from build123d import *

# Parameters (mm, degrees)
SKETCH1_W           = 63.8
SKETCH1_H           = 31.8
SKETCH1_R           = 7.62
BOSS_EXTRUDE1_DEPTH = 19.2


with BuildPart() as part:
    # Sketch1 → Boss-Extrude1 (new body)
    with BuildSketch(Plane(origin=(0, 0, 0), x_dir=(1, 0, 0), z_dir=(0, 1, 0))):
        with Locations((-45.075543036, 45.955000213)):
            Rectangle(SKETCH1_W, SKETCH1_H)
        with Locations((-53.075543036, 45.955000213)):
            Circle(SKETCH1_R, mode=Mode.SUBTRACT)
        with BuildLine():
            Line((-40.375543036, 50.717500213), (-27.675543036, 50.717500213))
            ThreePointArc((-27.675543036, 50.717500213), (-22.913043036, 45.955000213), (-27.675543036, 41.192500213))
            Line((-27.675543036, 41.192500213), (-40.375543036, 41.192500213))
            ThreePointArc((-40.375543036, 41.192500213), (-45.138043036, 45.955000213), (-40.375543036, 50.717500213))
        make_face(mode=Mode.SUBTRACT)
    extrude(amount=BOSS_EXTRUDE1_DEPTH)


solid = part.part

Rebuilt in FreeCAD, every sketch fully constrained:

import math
import FreeCAD as App
import Part
import Sketcher

V = App.Vector
Q = App.Units.Quantity


def add_polygon(sketch, points):
    """Adds a closed chain of lines whose ends are joined by coincident constraints."""
    first, n = sketch.GeometryCount, len(points)
    for a, b in zip(points, points[1:] + points[:1]):
        sketch.addGeometry(Part.LineSegment(App.Vector(*a, 0), App.Vector(*b, 0)), False)
    for i in range(n):
        sketch.addConstraint(Sketcher.Constraint("Coincident", first + i, 2, first + (i + 1) % n, 1))

doc = App.newDocument("Part")
body = doc.addObject("PartDesign::Body", "Body")

# Sketch on XZ plane
sketch1 = body.newObject("Sketcher::SketchObject", "Sketch")
sketch1.AttachmentSupport = (doc.getObject("XZ_Plane"), [""])
sketch1.MapMode = "FlatFace"
add_polygon(sketch1, [(-77, -61.9), (-77, -30.1), (-13.2, -30.1), (-13.2, -61.9)])  # lines 0-3
sketch1.addGeometry(Part.Circle(V(-53.1, -46, 0), V(0, 0, 1), 7.6), False)  # 4
sketch1.addGeometry(Part.ArcOfCircle(Part.Circle(V(-40.4, -46, 0), V(0, 0, 1), 4.8), math.radians(90), math.radians(270)), False)  # 5
sketch1.addGeometry(Part.LineSegment(V(-40.4, -50.7, 0), V(-27.7, -50.7, 0)), False)  # 6
sketch1.addGeometry(Part.ArcOfCircle(Part.Circle(V(-27.7, -46, 0), V(0, 0, 1), 4.8), math.radians(-90), math.radians(90)), False)  # 7
sketch1.addGeometry(Part.LineSegment(V(-27.7, -41.2, 0), V(-40.4, -41.2, 0)), False)  # 8
sketch1.addConstraint(Sketcher.Constraint("Tangent", 5, 2, 6, 1))
sketch1.addConstraint(Sketcher.Constraint("Tangent", 6, 2, 7, 1))
sketch1.addConstraint(Sketcher.Constraint("Tangent", 7, 2, 8, 1))
sketch1.addConstraint(Sketcher.Constraint("Tangent", 8, 2, 5, 1))
sketch1.addConstraint(Sketcher.Constraint("Vertical", 0))
sketch1.addConstraint(Sketcher.Constraint("Horizontal", 1))
sketch1.addConstraint(Sketcher.Constraint("Vertical", 2))
sketch1.addConstraint(Sketcher.Constraint("Horizontal", 3))
sketch1.addConstraint(Sketcher.Constraint("Horizontal", 6))
sketch1.addConstraint(Sketcher.Constraint("Horizontal", 8))
sketch1.addConstraint(Sketcher.Constraint("Horizontal", 4, 3, 5, 3))
sketch1.addConstraint(Sketcher.Constraint("Diameter", 4, Q("15.24 mm")))
sketch1.addConstraint(Sketcher.Constraint("DistanceX", 1, 1, 1, 2, Q("63.8 mm")))
sketch1.addConstraint(Sketcher.Constraint("DistanceX", 6, 1, 6, 2, Q("12.7 mm")))
sketch1.addConstraint(Sketcher.Constraint("DistanceY", 0, 1, 0, 2, Q("31.8 mm")))
sketch1.addConstraint(Sketcher.Constraint("Radius", 5, Q("4.7625 mm")))
sketch1.addConstraint(Sketcher.Constraint("DistanceX", 4, 3, 5, 3, Q("12.7 mm")))
sketch1.addConstraint(Sketcher.Constraint("DistanceX", 0, 2, 4, 3, Q("23.9 mm")))
sketch1.addConstraint(Sketcher.Constraint("DistanceY", 4, 3, 0, 2, Q("15.9 mm")))
sketch1.addConstraint(Sketcher.Constraint("DistanceY", 4, 3, -1, 1, Q("45.955 mm")))
sketch1.addConstraint(Sketcher.Constraint("DistanceX", 4, 3, -1, 1, Q("53.075543 mm")))
pad1 = body.newObject("PartDesign::Pad", "Pad")
pad1.Profile = sketch1
pad1.Length = 19.2
pad1.Reversed = True

doc.recompute()
